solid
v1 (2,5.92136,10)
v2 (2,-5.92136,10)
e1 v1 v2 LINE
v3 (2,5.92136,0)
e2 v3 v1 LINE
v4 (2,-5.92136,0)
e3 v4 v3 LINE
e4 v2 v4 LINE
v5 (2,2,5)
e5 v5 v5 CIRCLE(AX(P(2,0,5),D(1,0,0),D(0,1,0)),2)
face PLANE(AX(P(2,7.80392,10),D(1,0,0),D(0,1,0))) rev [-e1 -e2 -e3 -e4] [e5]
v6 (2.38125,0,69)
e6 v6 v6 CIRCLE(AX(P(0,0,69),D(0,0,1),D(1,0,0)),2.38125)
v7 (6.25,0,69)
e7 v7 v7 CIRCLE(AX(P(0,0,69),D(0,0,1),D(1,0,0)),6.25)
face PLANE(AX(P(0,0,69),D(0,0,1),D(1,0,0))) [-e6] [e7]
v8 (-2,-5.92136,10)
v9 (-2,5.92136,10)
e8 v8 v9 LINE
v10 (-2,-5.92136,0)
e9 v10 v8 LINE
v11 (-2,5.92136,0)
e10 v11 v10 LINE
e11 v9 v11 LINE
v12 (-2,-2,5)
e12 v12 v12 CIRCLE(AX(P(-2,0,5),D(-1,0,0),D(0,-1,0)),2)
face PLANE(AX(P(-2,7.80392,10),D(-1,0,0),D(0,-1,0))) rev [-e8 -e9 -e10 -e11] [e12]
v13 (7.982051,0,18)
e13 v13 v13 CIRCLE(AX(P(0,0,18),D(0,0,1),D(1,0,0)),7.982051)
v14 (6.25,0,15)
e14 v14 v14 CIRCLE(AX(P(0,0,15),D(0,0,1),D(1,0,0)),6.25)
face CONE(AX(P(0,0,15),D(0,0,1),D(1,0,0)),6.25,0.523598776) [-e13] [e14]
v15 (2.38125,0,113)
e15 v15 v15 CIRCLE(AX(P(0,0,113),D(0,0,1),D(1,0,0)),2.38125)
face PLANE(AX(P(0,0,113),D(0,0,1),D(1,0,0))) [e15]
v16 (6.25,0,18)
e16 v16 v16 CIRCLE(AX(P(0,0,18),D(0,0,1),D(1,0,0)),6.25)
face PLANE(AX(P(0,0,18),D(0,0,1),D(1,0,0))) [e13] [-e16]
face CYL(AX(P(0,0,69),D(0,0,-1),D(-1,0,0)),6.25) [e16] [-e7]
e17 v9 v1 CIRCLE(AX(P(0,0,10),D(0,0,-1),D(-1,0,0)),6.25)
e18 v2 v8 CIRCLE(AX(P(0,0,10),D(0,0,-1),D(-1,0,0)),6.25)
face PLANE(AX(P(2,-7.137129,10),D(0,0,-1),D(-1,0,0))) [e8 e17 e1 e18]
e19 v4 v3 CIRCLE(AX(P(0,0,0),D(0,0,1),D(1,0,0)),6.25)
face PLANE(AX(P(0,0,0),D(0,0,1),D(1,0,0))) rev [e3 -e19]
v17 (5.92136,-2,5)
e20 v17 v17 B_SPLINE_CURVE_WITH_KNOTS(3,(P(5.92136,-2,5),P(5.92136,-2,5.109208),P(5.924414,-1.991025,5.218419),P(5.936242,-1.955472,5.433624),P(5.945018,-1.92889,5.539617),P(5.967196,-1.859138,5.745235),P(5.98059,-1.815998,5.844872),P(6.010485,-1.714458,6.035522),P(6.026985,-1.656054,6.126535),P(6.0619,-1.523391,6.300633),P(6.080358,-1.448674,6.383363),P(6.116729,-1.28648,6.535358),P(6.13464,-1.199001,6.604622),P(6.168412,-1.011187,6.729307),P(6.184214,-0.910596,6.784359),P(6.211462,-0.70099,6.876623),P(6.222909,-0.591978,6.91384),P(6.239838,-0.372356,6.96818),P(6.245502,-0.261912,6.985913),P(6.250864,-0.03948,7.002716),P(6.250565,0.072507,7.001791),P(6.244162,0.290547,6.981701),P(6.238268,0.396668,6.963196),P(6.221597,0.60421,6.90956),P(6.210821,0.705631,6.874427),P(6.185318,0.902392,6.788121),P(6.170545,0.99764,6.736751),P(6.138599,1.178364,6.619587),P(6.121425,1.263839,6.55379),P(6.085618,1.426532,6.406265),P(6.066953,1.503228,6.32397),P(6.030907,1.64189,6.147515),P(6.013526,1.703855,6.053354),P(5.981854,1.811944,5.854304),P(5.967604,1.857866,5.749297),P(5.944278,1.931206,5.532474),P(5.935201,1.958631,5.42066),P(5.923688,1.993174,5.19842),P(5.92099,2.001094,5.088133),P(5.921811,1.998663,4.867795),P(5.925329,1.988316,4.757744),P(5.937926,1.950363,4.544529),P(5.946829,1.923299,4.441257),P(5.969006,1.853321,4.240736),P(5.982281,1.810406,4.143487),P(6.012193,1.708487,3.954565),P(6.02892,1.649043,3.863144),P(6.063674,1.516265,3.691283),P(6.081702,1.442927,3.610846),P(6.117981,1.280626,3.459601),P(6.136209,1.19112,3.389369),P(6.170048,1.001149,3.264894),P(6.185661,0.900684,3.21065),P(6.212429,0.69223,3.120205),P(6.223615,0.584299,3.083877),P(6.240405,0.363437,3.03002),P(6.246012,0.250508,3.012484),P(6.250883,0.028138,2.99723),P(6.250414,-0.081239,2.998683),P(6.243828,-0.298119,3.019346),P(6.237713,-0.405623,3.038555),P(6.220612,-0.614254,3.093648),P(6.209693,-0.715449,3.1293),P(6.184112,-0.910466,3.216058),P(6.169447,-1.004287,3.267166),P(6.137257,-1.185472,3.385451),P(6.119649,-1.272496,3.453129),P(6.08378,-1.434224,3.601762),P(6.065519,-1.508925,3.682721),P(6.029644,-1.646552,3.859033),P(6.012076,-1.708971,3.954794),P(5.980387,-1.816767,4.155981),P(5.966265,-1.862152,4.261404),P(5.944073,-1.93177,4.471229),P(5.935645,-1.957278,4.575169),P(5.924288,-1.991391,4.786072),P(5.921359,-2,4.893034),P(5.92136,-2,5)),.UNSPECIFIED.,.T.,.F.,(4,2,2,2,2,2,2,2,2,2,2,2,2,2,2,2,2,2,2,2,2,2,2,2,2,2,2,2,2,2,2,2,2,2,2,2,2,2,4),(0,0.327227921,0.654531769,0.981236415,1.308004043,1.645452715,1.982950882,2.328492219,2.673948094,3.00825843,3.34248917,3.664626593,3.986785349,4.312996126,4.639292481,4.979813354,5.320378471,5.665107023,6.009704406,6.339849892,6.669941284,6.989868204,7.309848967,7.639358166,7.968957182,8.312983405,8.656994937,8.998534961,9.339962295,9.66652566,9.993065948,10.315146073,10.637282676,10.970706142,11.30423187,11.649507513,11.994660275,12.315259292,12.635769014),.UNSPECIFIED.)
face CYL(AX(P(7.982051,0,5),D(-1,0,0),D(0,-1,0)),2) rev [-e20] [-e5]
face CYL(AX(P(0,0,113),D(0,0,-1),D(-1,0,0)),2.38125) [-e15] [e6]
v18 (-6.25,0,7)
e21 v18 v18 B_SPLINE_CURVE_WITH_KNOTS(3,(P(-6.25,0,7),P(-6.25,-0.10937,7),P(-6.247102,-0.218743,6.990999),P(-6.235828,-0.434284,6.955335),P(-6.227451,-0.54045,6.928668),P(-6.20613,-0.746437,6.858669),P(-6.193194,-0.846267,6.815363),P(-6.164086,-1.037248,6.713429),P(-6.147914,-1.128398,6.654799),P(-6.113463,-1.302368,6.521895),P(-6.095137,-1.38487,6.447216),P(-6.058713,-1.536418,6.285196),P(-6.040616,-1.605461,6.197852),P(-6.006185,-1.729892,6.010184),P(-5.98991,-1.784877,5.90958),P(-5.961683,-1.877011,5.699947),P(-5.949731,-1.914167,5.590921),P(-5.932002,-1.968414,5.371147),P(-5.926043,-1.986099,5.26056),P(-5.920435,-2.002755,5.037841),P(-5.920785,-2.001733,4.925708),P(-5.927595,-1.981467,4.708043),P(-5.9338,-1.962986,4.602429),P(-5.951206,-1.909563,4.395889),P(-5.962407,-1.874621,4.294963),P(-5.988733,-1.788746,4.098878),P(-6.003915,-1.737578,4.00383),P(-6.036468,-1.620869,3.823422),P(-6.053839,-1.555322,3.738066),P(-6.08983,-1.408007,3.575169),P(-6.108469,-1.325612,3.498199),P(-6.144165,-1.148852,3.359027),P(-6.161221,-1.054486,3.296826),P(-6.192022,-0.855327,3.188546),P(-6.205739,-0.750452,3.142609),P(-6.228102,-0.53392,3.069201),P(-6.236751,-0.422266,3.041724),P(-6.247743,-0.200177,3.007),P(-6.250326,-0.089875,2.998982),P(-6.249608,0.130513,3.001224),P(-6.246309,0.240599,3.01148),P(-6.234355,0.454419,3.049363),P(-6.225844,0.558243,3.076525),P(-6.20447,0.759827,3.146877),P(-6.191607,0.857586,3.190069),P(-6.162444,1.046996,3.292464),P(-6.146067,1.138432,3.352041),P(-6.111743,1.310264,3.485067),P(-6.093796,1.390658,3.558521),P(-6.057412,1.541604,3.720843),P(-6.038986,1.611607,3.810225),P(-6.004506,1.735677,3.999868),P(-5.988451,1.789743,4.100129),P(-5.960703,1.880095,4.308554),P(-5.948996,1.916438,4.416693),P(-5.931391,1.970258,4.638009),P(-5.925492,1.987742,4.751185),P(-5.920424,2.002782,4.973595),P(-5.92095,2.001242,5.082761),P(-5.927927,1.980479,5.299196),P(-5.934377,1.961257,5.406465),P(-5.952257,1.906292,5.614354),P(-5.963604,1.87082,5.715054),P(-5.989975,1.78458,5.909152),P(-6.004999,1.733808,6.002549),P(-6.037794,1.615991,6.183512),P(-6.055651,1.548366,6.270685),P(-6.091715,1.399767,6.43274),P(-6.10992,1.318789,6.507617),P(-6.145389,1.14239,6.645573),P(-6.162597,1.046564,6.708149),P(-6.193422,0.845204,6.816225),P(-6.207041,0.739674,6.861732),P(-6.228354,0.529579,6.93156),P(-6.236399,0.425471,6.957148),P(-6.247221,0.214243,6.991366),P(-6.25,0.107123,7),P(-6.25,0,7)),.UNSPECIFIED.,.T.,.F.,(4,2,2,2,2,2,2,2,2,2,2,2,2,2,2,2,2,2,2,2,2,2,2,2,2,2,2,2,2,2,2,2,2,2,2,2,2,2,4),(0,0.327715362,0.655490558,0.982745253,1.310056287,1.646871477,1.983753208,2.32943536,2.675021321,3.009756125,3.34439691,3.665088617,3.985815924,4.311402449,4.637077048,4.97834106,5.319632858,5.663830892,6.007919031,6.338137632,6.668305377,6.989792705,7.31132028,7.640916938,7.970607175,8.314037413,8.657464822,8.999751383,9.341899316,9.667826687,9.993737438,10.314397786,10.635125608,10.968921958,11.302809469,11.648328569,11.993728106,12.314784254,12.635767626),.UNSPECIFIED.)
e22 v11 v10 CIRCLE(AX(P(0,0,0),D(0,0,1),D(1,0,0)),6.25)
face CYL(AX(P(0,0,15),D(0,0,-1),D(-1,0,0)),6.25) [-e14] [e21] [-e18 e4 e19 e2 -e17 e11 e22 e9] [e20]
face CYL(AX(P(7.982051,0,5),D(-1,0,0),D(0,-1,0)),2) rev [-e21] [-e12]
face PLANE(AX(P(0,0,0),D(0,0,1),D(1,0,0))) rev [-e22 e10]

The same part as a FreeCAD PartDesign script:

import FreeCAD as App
import Part
import Sketcher
Q = App.Units.Quantity


def faces_at(feature, points):
    """Names of the faces that lie closest to the given points."""
    faces = feature.Shape.Faces
    near = lambda p: min(range(len(faces)), key=lambda i: faces[i].distToShape(Part.Vertex(*p))[0])
    return sorted({f"Face{near(p) + 1}" for p in points})

doc = App.newDocument("Part")
body = doc.addObject("PartDesign::Body", "Body")

# Sketch on XY plane
sketch1 = body.newObject("Sketcher::SketchObject", "Sketch")
sketch1.AttachmentSupport = (doc.getObject("XY_Plane"), [""])
sketch1.MapMode = "FlatFace"
sketch1.addGeometry(Part.Circle(App.Vector(0, 0, 0), App.Vector(0, 0, 1), 6), False)
sketch1.addConstraint(Sketcher.Constraint("Coincident", 0, 3, -1, 1))
sketch1.addConstraint(Sketcher.Constraint("Diameter", 0, Q("12.5 mm")))
pad1 = body.newObject("PartDesign::Pad", "Pad")
pad1.Profile = sketch1
pad1.Length = 15
body2 = doc.addObject("PartDesign::Body", "Body001")

# Sketch on XY plane
sketch2 = body2.newObject("Sketcher::SketchObject", "Sketch001")
sketch2.AttachmentSupport = (doc.getObject("XY_Plane001"), [""])
sketch2.MapMode = "FlatFace"
sketch2.AttachmentOffset = App.Placement(App.Vector(0, 0, 15), App.Rotation())
sketch2.addGeometry(Part.Circle(App.Vector(0, 0, 0), App.Vector(0, 0, 1), 6), False)
sketch2.addConstraint(Sketcher.Constraint("Coincident", 0, 3, -1, 1))
sketch2.addConstraint(Sketcher.Constraint("Diameter", 0, Q("12.5 mm")))
pad2 = body2.newObject("PartDesign::Pad", "Pad001")
pad2.Profile = sketch2
pad2.Length = 3
doc.recompute()

datumplane = body2.newObject("PartDesign::Plane", "DatumPlane")
datumplane.AttachmentSupport = (doc.getObject("XY_Plane001"), [""])
datumplane.MapMode = "FlatFace"
datumplane.AttachmentOffset = App.Placement(App.Vector(0, 0, 15), App.Rotation())
draft = body2.newObject("PartDesign::Draft", "Draft")
draft.Base = (pad2, faces_at(pad2, [(-6.25, 0, 16.5)]))
draft.NeutralPlane = (datumplane, [""])
draft.Angle = 30
draft.Reversed = True
doc.recompute()

boolean = body.newObject("PartDesign::Boolean", "Boolean")
boolean.Type = "Fuse"
boolean.addObjects([body2])

# Sketch on XY plane
sketch3 = body.newObject("Sketcher::SketchObject", "Sketch002")
sketch3.AttachmentSupport = (doc.getObject("XY_Plane"), [""])
sketch3.MapMode = "FlatFace"
sketch3.AttachmentOffset = App.Placement(App.Vector(0, 0, 18), App.Rotation())
sketch3.addGeometry(Part.Circle(App.Vector(0, 0, 0), App.Vector(0, 0, 1), 6), False)
sketch3.addConstraint(Sketcher.Constraint("Coincident", 0, 3, -1, 1))
sketch3.addConstraint(Sketcher.Constraint("Diameter", 0, Q("12.5 mm")))
pad3 = body.newObject("PartDesign::Pad", "Pad002")
pad3.Profile = sketch3
pad3.Length = 51

# Sketch on XY plane
sketch4 = body.newObject("Sketcher::SketchObject", "Sketch003")
sketch4.AttachmentSupport = (doc.getObject("XY_Plane"), [""])
sketch4.MapMode = "FlatFace"
sketch4.AttachmentOffset = App.Placement(App.Vector(0, 0, 69), App.Rotation())
sketch4.addGeometry(Part.Circle(App.Vector(0, 0, 0), App.Vector(0, 0, 1), 2.4), False)
sketch4.addConstraint(Sketcher.Constraint("Coincident", 0, 3, -1, 1))
sketch4.addConstraint(Sketcher.Constraint("Diameter", 0, Q("4.7625 mm")))
pad4 = body.newObject("PartDesign::Pad", "Pad003")
pad4.Profile = sketch4
pad4.Length = 44

# Sketch on XY plane
sketch5 = body.newObject("Sketcher::SketchObject", "Sketch004")
sketch5.AttachmentSupport = (doc.getObject("XY_Plane"), [""])
sketch5.MapMode = "FlatFace"
sketch5.addGeometry(Part.LineSegment(App.Vector(2, 7.8, 0), App.Vector(2, -7.1, 0)), False)
sketch5.addGeometry(Part.LineSegment(App.Vector(2, -7.1, 0), App.Vector(-2, -7.1, 0)), False)
sketch5.addGeometry(Part.LineSegment(App.Vector(-2, -7.1, 0), App.Vector(-2, 7.8, 0)), False)
sketch5.addGeometry(Part.LineSegment(App.Vector(-2, 7.8, 0), App.Vector(2, 7.8, 0)), False)
sketch5.addConstraint(Sketcher.Constraint("Coincident", 0, 2, 1, 1))
sketch5.addConstraint(Sketcher.Constraint("Coincident", 1, 2, 2, 1))
sketch5.addConstraint(Sketcher.Constraint("Coincident", 2, 2, 3, 1))
sketch5.addConstraint(Sketcher.Constraint("Coincident", 3, 2, 0, 1))
sketch5.addConstraint(Sketcher.Constraint("Vertical", 0))
sketch5.addConstraint(Sketcher.Constraint("Horizontal", 1))
sketch5.addConstraint(Sketcher.Constraint("Vertical", 2))
sketch5.addConstraint(Sketcher.Constraint("Horizontal", 3))
sketch5.addConstraint(Sketcher.Constraint("DistanceX", 1, 2, 1, 1, Q("4 mm")))
sketch5.addConstraint(Sketcher.Constraint("DistanceX", -1, 1, 0, 2, Q("2 mm")))
sketch5.addConstraint(Sketcher.Constraint("DistanceY", 0, 2, 0, 1, Q("14.941049 mm")))
sketch5.addConstraint(Sketcher.Constraint("DistanceY", 0, 2, -1, 1, Q("7.137129 mm")))
pocket1 = body.newObject("PartDesign::Pocket", "Pocket")
pocket1.Profile = sketch5
pocket1.Length = 10
pocket1.Reversed = True

# Sketch on YZ plane
sketch6 = body.newObject("Sketcher::SketchObject", "Sketch005")
sketch6.AttachmentSupport = (doc.getObject("YZ_Plane"), [""])
sketch6.MapMode = "FlatFace"
sketch6.AttachmentOffset = App.Placement(App.Vector(0, 0, 2), App.Rotation())
sketch6.addGeometry(Part.Circle(App.Vector(0, 5, 0), App.Vector(0, 0, 1), 2), False)
sketch6.addConstraint(Sketcher.Constraint("PointOnObject", 0, 3, -2))
sketch6.addConstraint(Sketcher.Constraint("Diameter", 0, Q("4 mm")))
sketch6.addConstraint(Sketcher.Constraint("DistanceY", -1, 1, 0, 3, Q("5 mm")))
pocket2 = body.newObject("PartDesign::Pocket", "Pocket001")
pocket2.Profile = sketch6
pocket2.Type = "ThroughAll"
pocket2.Midplane = True

doc.recompute()
